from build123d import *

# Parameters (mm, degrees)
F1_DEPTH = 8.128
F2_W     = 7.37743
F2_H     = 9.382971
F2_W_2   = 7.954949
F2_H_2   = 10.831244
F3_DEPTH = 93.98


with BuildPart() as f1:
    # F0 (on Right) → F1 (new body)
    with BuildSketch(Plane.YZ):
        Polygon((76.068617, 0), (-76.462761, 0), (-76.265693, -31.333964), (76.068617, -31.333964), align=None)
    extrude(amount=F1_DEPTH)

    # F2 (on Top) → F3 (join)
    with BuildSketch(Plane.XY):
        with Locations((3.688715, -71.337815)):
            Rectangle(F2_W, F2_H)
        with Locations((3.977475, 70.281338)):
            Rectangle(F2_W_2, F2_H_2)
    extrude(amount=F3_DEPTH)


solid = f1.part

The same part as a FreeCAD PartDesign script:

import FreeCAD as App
import Part
import Sketcher
Q = App.Units.Quantity

doc = App.newDocument("Part")
body = doc.addObject("PartDesign::Body", "Body")

# Sketch on YZ plane
sketch1 = doc.addObject("Sketcher::SketchObject", "Sketch")
body.addObject(sketch1)
sketch1.AttachmentSupport = (doc.YZ_Plane, [""])
sketch1.MapMode = "FlatFace"
sketch1.addGeometry([
    Part.LineSegment(App.Vector(76, 0, 0), App.Vector(-76, 0, 0)),
    Part.LineSegment(App.Vector(-76, 0, 0), App.Vector(-76, -31, 0)),
    Part.LineSegment(App.Vector(-76, -31, 0), App.Vector(76, -31, 0)),
    Part.LineSegment(App.Vector(76, -31, 0), App.Vector(76, 0, 0)),
], False)
sketch1.addConstraint([
    Sketcher.Constraint("Coincident", 0, 2, 1, 1),
    Sketcher.Constraint("Coincident", 1, 2, 2, 1),
    Sketcher.Constraint("Coincident", 2, 2, 3, 1),
    Sketcher.Constraint("Coincident", 3, 2, 0, 1),
    Sketcher.Constraint("Horizontal", 0),
    Sketcher.Constraint("Horizontal", 2),
    Sketcher.Constraint("Vertical", 3),
    Sketcher.Constraint("PointOnObject", 0, 2, -1),
    Sketcher.Constraint("DistanceX", 0, 2, 0, 1, Q("152.531378 mm")),
    Sketcher.Constraint("DistanceX", 2, 1, 2, 2, Q("152.33431 mm")),
    Sketcher.Constraint("DistanceY", 3, 1, 3, 2, Q("31.333964 mm")),
    Sketcher.Constraint("DistanceX", 0, 2, -1, 1, Q("76.462761 mm")),
])
pad1 = doc.addObject("PartDesign::Pad", "Pad")
body.addObject(pad1)
pad1.Profile = sketch1
pad1.Length = Q("0.32 in")

# Sketch on XY plane
sketch2 = doc.addObject("Sketcher::SketchObject", "Sketch001")
body.addObject(sketch2)
sketch2.AttachmentSupport = (doc.XY_Plane, [""])
sketch2.MapMode = "FlatFace"
sketch2.addGeometry([
    Part.LineSegment(App.Vector(0, -67, 0), App.Vector(0, -76, 0)),  # 0
    Part.LineSegment(App.Vector(0, -76, 0), App.Vector(7, -76, 0)),  # 1
    Part.LineSegment(App.Vector(7, -76, 0), App.Vector(7, -67, 0)),  # 2
    Part.LineSegment(App.Vector(7, -67, 0), App.Vector(0, -67, 0)),  # 3
    Part.LineSegment(App.Vector(0, 76, 0), App.Vector(0, 65, 0)),  # 4
    Part.LineSegment(App.Vector(0, 65, 0), App.Vector(8, 65, 0)),  # 5
    Part.LineSegment(App.Vector(8, 65, 0), App.Vector(8, 76, 0)),  # 6
    Part.LineSegment(App.Vector(8, 76, 0), App.Vector(0, 76, 0)),  # 7
], False)
sketch2.addConstraint([
    Sketcher.Constraint("Coincident", 0, 2, 1, 1),
    Sketcher.Constraint("Coincident", 1, 2, 2, 1),
    Sketcher.Constraint("Coincident", 2, 2, 3, 1),
    Sketcher.Constraint("Coincident", 3, 2, 0, 1),
    Sketcher.Constraint("Coincident", 4, 2, 5, 1),
    Sketcher.Constraint("Coincident", 5, 2, 6, 1),
    Sketcher.Constraint("Coincident", 6, 2, 7, 1),
    Sketcher.Constraint("Coincident", 7, 2, 4, 1),
    Sketcher.Constraint("Vertical", 0),
    Sketcher.Constraint("Horizontal", 1),
    Sketcher.Constraint("Vertical", 2),
    Sketcher.Constraint("Horizontal", 3),
    Sketcher.Constraint("Vertical", 4),
    Sketcher.Constraint("Horizontal", 5),
    Sketcher.Constraint("Vertical", 6),
    Sketcher.Constraint("Horizontal", 7),
    Sketcher.Constraint("PointOnObject", 0, 2, -2),
    Sketcher.Constraint("PointOnObject", 4, 2, -2),
    Sketcher.Constraint("DistanceX", 1, 1, 1, 2, Q("7.37743 mm")),
    Sketcher.Constraint("DistanceX", 5, 1, 5, 2, Q("7.954949 mm")),
    Sketcher.Constraint("DistanceY", 0, 2, 0, 1, Q("9.382971 mm")),
    Sketcher.Constraint("DistanceY", 0, 2, -1, 1, Q("76.029301 mm")),
    Sketcher.Constraint("DistanceY", 4, 2, 4, 1, Q("10.831244 mm")),
    Sketcher.Constraint("DistanceY", -1, 1, 6, 2, Q("75.69696 mm")),
])
pad2 = doc.addObject("PartDesign::Pad", "Pad001")
body.addObject(pad2)
pad2.Profile = sketch2
pad2.Length = Q("3.7 in")

doc.recompute()
